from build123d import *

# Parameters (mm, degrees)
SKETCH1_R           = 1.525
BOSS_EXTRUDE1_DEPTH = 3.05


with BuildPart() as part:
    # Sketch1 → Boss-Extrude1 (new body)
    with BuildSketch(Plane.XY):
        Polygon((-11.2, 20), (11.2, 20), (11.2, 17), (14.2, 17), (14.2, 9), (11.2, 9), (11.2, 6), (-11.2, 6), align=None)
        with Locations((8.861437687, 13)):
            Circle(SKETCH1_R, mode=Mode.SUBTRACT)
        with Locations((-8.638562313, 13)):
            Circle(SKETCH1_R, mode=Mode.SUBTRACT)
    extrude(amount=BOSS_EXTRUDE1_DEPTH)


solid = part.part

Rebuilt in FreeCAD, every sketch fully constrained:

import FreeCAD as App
import Part
import Sketcher

V = App.Vector


def add_polygon(sketch, points):
    """Adds a closed chain of lines whose ends are joined by coincident constraints."""
    first, n = sketch.GeometryCount, len(points)
    for a, b in zip(points, points[1:] + points[:1]):
        sketch.addGeometry(Part.LineSegment(App.Vector(*a, 0), App.Vector(*b, 0)), False)
    for i in range(n):
        sketch.addConstraint(Sketcher.Constraint("Coincident", first + i, 2, first + (i + 1) % n, 1))

doc = App.newDocument("Part")
body = doc.addObject("PartDesign::Body", "Body")

# Sketch on XY plane
sketch1 = body.newObject("Sketcher::SketchObject", "Sketch")
sketch1.AttachmentSupport = (doc.getObject("XY_Plane"), [""])
sketch1.MapMode = "FlatFace"
add_polygon(sketch1, [(11.2, 20), (-11.2, 20), (-11.2, 6), (11.2, 6), (11.2, 9), (14.2, 9), (14.2, 17), (11.2, 17)])  # lines 0-7
sketch1.addGeometry(Part.Circle(V(8.861438, 13, 0), V(0, 0, 1), 1.525), False)  # 8
sketch1.addGeometry(Part.Circle(V(-8.638562, 13, 0), V(0, 0, 1), 1.525), False)  # 9
sketch1.addConstraint(Sketcher.Constraint("Horizontal", 0))
sketch1.addConstraint(Sketcher.Constraint("Vertical", 1))
sketch1.addConstraint(Sketcher.Constraint("Horizontal", 2))
sketch1.addConstraint(Sketcher.Constraint("Vertical", 3))
sketch1.addConstraint(Sketcher.Constraint("Horizontal", 4))
sketch1.addConstraint(Sketcher.Constraint("Vertical", 5))
sketch1.addConstraint(Sketcher.Constraint("Horizontal", 6))
sketch1.addConstraint(Sketcher.Constraint("Vertical", 7))
sketch1.addConstraint(Sketcher.Constraint("Equal", 8, 9))
sketch1.addConstraint(Sketcher.Constraint("Horizontal", 8, 3, 9, 3))
sketch1.addConstraint(Sketcher.Constraint("Vertical", 3, 2, 6, 2))
sketch1.addConstraint(Sketcher.Constraint("Equal", 6, 3))
sketch1.addConstraint(Sketcher.Constraint("Equal", 3, 7))
sketch1.addConstraint(Sketcher.Constraint("Diameter", 8, 3.05))
sketch1.addConstraint(Sketcher.Constraint("DistanceX", 4, 1, 4, 2, 3.0))
sketch1.addConstraint(Sketcher.Constraint("DistanceY", 1, 2, 1, 1, 14.0))
sketch1.addConstraint(Sketcher.Constraint("DistanceX", 0, 2, 0, 1, 22.4))
sketch1.addConstraint(Sketcher.Constraint("DistanceY", -1, 1, 8, 3, 13.0))
sketch1.addConstraint(Sketcher.Constraint("DistanceY", -1, 1, 0, 2, 20.0))
sketch1.addConstraint(Sketcher.Constraint("DistanceX", 0, 2, -1, 1, 11.2))
sketch1.addConstraint(Sketcher.Constraint("DistanceX", 9, 3, 8, 3, 17.5))
sketch1.addConstraint(Sketcher.Constraint("DistanceX", -1, 1, 8, 3, 8.861438))
pad1 = body.newObject("PartDesign::Pad", "Pad")
pad1.Profile = sketch1
pad1.Length = 3.05

doc.recompute()
